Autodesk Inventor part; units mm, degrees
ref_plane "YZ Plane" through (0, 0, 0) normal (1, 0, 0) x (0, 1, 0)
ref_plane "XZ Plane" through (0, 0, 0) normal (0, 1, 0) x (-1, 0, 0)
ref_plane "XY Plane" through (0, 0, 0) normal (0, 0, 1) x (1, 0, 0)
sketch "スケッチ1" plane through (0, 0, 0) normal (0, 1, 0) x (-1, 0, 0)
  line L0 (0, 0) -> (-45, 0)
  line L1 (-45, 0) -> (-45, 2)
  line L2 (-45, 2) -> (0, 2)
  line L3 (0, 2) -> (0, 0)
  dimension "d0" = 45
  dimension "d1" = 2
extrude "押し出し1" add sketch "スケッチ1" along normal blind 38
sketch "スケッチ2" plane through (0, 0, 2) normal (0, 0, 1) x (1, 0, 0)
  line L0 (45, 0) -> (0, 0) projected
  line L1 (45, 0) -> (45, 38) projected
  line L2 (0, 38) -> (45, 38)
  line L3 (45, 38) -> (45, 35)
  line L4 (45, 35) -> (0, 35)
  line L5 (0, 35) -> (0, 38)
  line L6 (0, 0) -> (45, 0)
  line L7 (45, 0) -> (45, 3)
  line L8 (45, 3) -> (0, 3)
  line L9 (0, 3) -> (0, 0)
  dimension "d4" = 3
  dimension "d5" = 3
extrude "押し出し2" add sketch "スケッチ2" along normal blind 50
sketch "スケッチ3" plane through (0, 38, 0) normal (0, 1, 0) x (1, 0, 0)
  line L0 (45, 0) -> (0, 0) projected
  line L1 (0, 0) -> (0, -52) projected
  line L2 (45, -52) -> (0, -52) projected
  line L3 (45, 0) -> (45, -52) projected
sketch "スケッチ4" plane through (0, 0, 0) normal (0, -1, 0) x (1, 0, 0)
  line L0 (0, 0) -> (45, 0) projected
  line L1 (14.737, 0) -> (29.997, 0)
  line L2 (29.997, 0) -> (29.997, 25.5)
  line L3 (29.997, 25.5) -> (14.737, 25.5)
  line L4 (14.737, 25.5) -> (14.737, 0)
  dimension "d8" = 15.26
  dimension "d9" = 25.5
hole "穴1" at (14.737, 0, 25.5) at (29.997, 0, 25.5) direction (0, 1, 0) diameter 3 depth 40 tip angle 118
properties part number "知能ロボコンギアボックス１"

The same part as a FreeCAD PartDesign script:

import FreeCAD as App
import Part
import Sketcher
from FreeCAD import Vector
Q = App.Units.Quantity


def add_polygon(sketch, points):
    """Adds a closed chain of lines whose ends are joined by coincident constraints."""
    first, n = sketch.GeometryCount, len(points)
    for a, b in zip(points, points[1:] + points[:1]):
        sketch.addGeometry(Part.LineSegment(App.Vector(*a, 0), App.Vector(*b, 0)), False)
    for i in range(n):
        sketch.addConstraint(Sketcher.Constraint("Coincident", first + i, 2, first + (i + 1) % n, 1))

doc = App.newDocument("Part")
body = doc.addObject("PartDesign::Body", "Body")

sketch1 = body.newObject("Sketcher::SketchObject", "Sketch")
sketch1.AttachmentSupport = (doc.getObject("XZ_Plane"), [""])
sketch1.MapMode = "FlatFace"
add_polygon(sketch1, [(45, 0), (0, 0), (0, 2), (45, 2)])
sketch1.addConstraint([
    Sketcher.Constraint("Horizontal", 0),
    Sketcher.Constraint("Vertical", 1),
    Sketcher.Constraint("Horizontal", 2),
    Sketcher.Constraint("Vertical", 3),
    Sketcher.Constraint("Coincident", 0, 2, -1, 1),
    Sketcher.Constraint("DistanceX", 0, 2, 0, 1, Q("45 mm")),
    Sketcher.Constraint("DistanceY", 1, 1, 1, 2, Q("2 mm")),
])
pad1 = body.newObject("PartDesign::Pad", "Pad")
pad1.Profile = sketch1
pad1.Length = 38
pad1.Reversed = True

sketch2 = body.newObject("Sketcher::SketchObject", "Sketch001")
sketch2.AttachmentSupport = (doc.getObject("XY_Plane"), [""])
sketch2.MapMode = "FlatFace"
sketch2.AttachmentOffset = App.Placement(Vector(0, 0, 2), App.Rotation())
add_polygon(sketch2, [(0, 35), (45, 35), (45, 38), (0, 38)])
add_polygon(sketch2, [(0, 0), (45, 0), (45, 3), (0, 3)])
sketch2.addConstraint([
    Sketcher.Constraint("Horizontal", 0),
    Sketcher.Constraint("Vertical", 1),
    Sketcher.Constraint("Horizontal", 2),
    Sketcher.Constraint("Vertical", 3),
    Sketcher.Constraint("Horizontal", 4),
    Sketcher.Constraint("Vertical", 5),
    Sketcher.Constraint("Horizontal", 6),
    Sketcher.Constraint("Vertical", 7),
    Sketcher.Constraint("Coincident", 7, 2, -1, 1),
    Sketcher.Constraint("PointOnObject", 2, 2, -2),
    Sketcher.Constraint("Vertical", 1, 2, 4, 2),
    Sketcher.Constraint("Equal", 3, 5),
    Sketcher.Constraint("DistanceY", 1, 1, 1, 2, Q("3 mm")),
    Sketcher.Constraint("DistanceX", 0, 1, 0, 2, Q("45 mm")),
    Sketcher.Constraint("DistanceY", -1, 1, 0, 2, Q("35 mm")),
])
pad2 = body.newObject("PartDesign::Pad", "Pad001")
pad2.Profile = sketch2
pad2.Length = 50

sketch3 = body.newObject("Sketcher::SketchObject", "Sketch002")
sketch3.AttachmentSupport = (doc.getObject("XZ_Plane"), [""])
sketch3.MapMode = "FlatFace"
sketch3.addGeometry([
    Part.Circle(Vector(14.7, 25.5, 0), Vector(0, 0, 1), 1.5),
    Part.Circle(Vector(30, 25.5, 0), Vector(0, 0, 1), 1.5),
], False)
sketch3.addConstraint([
    Sketcher.Constraint("Equal", 0, 1),
    Sketcher.Constraint("Horizontal", 0, 3, 1, 3),
    Sketcher.Constraint("Diameter", 0, Q("3 mm")),
    Sketcher.Constraint("DistanceY", -1, 1, 0, 3, Q("25.5 mm")),
    Sketcher.Constraint("DistanceX", 0, 3, 1, 3, Q("15.26 mm")),
    Sketcher.Constraint("DistanceX", -1, 1, 0, 3, Q("14.737 mm")),
])
doc.recompute()
hole = body.newObject("PartDesign::Hole", "Hole")
hole.Profile = sketch3
hole.ThreadType = "None"
hole.Diameter = 3
hole.DepthType = "Dimension"
hole.Depth = 40
hole.DrillPoint = "Angled"
hole.DrillPointAngle = 118

doc.recompute()
